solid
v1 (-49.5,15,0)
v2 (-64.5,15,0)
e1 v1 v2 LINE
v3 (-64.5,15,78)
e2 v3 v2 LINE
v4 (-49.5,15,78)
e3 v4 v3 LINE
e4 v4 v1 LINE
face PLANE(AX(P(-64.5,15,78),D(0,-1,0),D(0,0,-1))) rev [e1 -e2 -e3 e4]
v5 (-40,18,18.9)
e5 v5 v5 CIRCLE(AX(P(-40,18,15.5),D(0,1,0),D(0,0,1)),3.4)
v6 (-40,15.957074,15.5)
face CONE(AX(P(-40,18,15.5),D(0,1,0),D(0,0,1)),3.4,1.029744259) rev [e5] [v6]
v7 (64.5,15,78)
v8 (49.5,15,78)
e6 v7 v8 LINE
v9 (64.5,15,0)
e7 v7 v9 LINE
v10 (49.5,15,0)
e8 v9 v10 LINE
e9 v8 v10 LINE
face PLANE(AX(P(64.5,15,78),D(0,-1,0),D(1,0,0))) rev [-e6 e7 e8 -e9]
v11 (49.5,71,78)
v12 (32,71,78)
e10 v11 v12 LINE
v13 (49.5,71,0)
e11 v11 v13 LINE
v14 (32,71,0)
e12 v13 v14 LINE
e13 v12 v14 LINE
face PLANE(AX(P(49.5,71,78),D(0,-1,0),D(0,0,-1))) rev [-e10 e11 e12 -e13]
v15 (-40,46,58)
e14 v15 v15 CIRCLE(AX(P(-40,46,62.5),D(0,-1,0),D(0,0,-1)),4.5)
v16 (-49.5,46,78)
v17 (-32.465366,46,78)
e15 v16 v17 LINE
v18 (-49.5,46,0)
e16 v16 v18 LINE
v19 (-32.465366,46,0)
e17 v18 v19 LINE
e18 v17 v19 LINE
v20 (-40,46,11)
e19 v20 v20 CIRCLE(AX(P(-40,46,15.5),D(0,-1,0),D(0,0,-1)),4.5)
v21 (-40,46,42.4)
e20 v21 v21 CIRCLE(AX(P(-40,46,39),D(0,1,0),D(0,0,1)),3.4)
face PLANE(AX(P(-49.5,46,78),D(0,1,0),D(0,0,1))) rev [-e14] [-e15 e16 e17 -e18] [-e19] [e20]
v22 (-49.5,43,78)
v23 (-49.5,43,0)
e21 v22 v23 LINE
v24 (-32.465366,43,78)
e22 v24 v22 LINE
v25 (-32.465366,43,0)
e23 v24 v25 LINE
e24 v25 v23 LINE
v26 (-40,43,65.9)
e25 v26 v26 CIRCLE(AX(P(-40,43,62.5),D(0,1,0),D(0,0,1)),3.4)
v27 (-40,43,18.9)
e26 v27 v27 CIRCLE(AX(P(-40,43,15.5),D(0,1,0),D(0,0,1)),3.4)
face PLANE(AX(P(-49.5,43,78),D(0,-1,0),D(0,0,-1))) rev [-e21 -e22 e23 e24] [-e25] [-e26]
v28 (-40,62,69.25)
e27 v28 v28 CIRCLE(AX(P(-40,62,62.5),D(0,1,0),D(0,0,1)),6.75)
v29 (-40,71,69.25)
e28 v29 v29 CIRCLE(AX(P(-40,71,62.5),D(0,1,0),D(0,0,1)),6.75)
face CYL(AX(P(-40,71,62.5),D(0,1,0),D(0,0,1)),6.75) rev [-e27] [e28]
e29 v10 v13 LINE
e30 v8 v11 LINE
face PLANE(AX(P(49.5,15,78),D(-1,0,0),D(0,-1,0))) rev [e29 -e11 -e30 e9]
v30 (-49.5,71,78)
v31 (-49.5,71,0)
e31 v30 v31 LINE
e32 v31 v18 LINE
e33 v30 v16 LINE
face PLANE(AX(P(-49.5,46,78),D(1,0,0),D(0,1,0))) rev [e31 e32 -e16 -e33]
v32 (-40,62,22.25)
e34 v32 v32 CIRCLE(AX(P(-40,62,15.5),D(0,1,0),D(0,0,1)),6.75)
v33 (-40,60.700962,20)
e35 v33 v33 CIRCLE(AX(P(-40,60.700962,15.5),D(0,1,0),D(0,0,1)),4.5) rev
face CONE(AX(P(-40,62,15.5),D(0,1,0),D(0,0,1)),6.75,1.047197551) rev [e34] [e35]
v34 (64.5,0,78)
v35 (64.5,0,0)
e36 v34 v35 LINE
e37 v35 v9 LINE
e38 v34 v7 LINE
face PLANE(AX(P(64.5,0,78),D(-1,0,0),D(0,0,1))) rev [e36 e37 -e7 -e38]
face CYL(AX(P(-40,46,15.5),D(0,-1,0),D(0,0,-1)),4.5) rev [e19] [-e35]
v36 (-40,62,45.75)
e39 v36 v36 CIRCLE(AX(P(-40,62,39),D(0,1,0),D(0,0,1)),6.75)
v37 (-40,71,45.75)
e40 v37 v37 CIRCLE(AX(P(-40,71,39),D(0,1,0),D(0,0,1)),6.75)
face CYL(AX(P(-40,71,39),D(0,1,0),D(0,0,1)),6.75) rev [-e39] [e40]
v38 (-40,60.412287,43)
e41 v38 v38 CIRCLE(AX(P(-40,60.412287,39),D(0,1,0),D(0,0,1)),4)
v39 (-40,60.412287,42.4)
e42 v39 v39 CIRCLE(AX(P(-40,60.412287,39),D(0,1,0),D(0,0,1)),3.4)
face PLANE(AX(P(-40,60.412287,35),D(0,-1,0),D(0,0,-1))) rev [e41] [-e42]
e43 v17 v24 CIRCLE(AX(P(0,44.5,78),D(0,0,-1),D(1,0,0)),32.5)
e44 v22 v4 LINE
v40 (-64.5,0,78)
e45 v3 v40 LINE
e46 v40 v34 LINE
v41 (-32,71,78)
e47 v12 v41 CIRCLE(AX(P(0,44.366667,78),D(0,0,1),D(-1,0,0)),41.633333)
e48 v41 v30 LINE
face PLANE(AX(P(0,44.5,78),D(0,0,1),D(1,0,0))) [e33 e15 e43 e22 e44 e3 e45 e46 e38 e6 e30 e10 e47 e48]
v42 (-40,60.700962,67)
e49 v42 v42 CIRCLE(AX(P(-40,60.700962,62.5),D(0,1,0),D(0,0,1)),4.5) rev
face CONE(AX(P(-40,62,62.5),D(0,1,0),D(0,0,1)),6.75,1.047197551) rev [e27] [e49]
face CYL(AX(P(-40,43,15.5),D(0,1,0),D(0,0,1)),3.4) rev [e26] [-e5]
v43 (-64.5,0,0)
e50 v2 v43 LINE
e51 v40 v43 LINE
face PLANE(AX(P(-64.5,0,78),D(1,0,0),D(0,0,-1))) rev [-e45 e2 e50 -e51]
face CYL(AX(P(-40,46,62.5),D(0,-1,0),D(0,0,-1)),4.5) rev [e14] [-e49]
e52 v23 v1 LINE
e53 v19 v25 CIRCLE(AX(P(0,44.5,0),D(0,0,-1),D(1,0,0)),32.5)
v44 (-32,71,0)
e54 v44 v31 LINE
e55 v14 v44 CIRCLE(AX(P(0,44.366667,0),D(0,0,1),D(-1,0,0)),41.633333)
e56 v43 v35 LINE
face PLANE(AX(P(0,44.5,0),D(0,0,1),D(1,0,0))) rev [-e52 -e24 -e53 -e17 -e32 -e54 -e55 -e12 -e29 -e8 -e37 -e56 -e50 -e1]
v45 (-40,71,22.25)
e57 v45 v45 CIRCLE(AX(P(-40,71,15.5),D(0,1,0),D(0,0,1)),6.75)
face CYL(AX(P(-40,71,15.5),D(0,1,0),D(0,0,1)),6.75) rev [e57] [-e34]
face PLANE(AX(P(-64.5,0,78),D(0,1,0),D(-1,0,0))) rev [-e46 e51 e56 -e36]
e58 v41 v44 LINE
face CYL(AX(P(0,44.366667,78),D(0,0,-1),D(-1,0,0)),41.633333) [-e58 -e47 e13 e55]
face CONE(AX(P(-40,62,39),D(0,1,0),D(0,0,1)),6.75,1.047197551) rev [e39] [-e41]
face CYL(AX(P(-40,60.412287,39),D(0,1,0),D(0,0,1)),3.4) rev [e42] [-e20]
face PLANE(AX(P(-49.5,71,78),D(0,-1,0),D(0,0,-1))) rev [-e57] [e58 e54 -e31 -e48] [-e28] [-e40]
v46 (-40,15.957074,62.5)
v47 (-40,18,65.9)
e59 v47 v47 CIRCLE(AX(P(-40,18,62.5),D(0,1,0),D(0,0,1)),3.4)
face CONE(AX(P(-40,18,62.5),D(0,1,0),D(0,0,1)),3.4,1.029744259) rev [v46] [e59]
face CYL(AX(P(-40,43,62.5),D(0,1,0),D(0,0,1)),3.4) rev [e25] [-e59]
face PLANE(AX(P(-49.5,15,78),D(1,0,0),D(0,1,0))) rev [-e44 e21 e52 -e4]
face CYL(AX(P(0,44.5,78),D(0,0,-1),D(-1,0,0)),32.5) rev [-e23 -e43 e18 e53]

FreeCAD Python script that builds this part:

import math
import FreeCAD as App
import Part
import Sketcher
Q = App.Units.Quantity

doc = App.newDocument("Part")
body = doc.addObject("PartDesign::Body", "Body")

# Sketch on XY plane
sketch1 = body.newObject("Sketcher::SketchObject", "Sketch")
sketch1.AttachmentSupport = (doc.getObject("XY_Plane"), [""])
sketch1.MapMode = "FlatFace"
sketch1.addGeometry([
    Part.LineSegment(App.Vector(-64.5, 0, 0), App.Vector(64.5, 0, 0)),  # 0
    Part.LineSegment(App.Vector(64.5, 0, 0), App.Vector(64.5, 15, 0)),  # 1
    Part.LineSegment(App.Vector(64.5, 15, 0), App.Vector(49.5, 15, 0)),  # 2
    Part.LineSegment(App.Vector(49.5, 15, 0), App.Vector(49.5, 71, 0)),  # 3
    Part.LineSegment(App.Vector(49.5, 71, 0), App.Vector(32, 71, 0)),  # 4
    Part.ArcOfCircle(Part.Circle(App.Vector(0, 44.366667, 0), App.Vector(0, 0, 1), 41.633333), math.radians(39.77033), math.radians(140.22967)),  # 5
    Part.LineSegment(App.Vector(-32, 71, 0), App.Vector(-49.5, 71, 0)),  # 6
    Part.LineSegment(App.Vector(-49.5, 71, 0), App.Vector(-49.5, 46, 0)),  # 7
    Part.LineSegment(App.Vector(-49.5, 46, 0), App.Vector(-32.465366, 46, 0)),  # 8
    Part.ArcOfCircle(Part.Circle(App.Vector(0, 44.5, 0), App.Vector(0, 0, 1), 32.5), math.radians(-177.35464), math.radians(177.35464)),  # 9
    Part.LineSegment(App.Vector(-32.465366, 43, 0), App.Vector(-49.5, 43, 0)),  # 10
    Part.LineSegment(App.Vector(-49.5, 43, 0), App.Vector(-49.5, 15, 0)),  # 11
    Part.LineSegment(App.Vector(-49.5, 15, 0), App.Vector(-64.5, 15, 0)),  # 12
    Part.LineSegment(App.Vector(-64.5, 15, 0), App.Vector(-64.5, 0, 0)),  # 13
], False)
sketch1.addConstraint([
    Sketcher.Constraint("Coincident", 0, 2, 1, 1),
    Sketcher.Constraint("Coincident", 1, 2, 2, 1),
    Sketcher.Constraint("Coincident", 2, 2, 3, 1),
    Sketcher.Constraint("Coincident", 3, 2, 4, 1),
    Sketcher.Constraint("Coincident", 4, 2, 5, 1),
    Sketcher.Constraint("Coincident", 5, 2, 6, 1),
    Sketcher.Constraint("Coincident", 6, 2, 7, 1),
    Sketcher.Constraint("Coincident", 7, 2, 8, 1),
    Sketcher.Constraint("Coincident", 8, 2, 9, 2),
    Sketcher.Constraint("Coincident", 9, 1, 10, 1),
    Sketcher.Constraint("Coincident", 10, 2, 11, 1),
    Sketcher.Constraint("Coincident", 11, 2, 12, 1),
    Sketcher.Constraint("Coincident", 12, 2, 13, 1),
    Sketcher.Constraint("Coincident", 13, 2, 0, 1),
    Sketcher.Constraint("Horizontal", 0),
    Sketcher.Constraint("Vertical", 1),
    Sketcher.Constraint("Horizontal", 2),
    Sketcher.Constraint("Vertical", 3),
    Sketcher.Constraint("Horizontal", 4),
    Sketcher.Constraint("Horizontal", 6),
    Sketcher.Constraint("Vertical", 7),
    Sketcher.Constraint("Horizontal", 8),
    Sketcher.Constraint("Horizontal", 10),
    Sketcher.Constraint("Vertical", 11),
    Sketcher.Constraint("Horizontal", 12),
    Sketcher.Constraint("Vertical", 13),
    Sketcher.Constraint("Symmetric", 0, 2, 13, 2, -1, 1),
    Sketcher.Constraint("Symmetric", 4, 2, 5, 2, -2),
    Sketcher.Constraint("Symmetric", 2, 2, 11, 2, -2),
    Sketcher.Constraint("PointOnObject", 9, 3, -2),
    Sketcher.Constraint("Vertical", 8, 2, 9, 1),
    Sketcher.Constraint("Vertical", 7, 2, 10, 2),
    Sketcher.Constraint("Equal", 12, 1),
    Sketcher.Constraint("Radius", 9, 32.5),
    Sketcher.Constraint("DistanceX", 0, 1, 0, 2, 129.0),
    Sketcher.Constraint("DistanceX", 2, 2, 2, 1, 15.0),
    Sketcher.Constraint("DistanceY", 3, 1, 3, 2, 56.0),
    Sketcher.Constraint("DistanceY", 7, 2, 7, 1, 25.0),
    Sketcher.Constraint("DistanceY", 11, 2, 11, 1, 28.0),
    Sketcher.Constraint("DistanceX", 4, 2, 4, 1, 17.5),
    Sketcher.Constraint("Radius", 5, 41.633333),
])
pad1 = body.newObject("PartDesign::Pad", "Pad")
pad1.Profile = sketch1
pad1.Length = 78

# Sketch on YZ plane
sketch2 = body.newObject("Sketcher::SketchObject", "Sketch001")
sketch2.AttachmentSupport = (doc.getObject("YZ_Plane"), [""])
sketch2.MapMode = "FlatFace"
sketch2.AttachmentOffset = App.Placement(App.Vector(0, 0, -40), App.Rotation())
sketch2.addGeometry([
    Part.LineSegment(App.Vector(71, 55.75, 0), App.Vector(62, 55.75, 0)),  # 0
    Part.LineSegment(App.Vector(62, 55.75, 0), App.Vector(60.412287, 58.5, 0)),  # 1
    Part.LineSegment(App.Vector(60.412287, 58.5, 0), App.Vector(60.412287, 62.5, 0)),  # 2
    Part.LineSegment(App.Vector(60.412287, 62.5, 0), App.Vector(71, 62.5, 0)),  # 3
    Part.LineSegment(App.Vector(71, 62.5, 0), App.Vector(71, 55.75, 0)),  # 4
], False)
sketch2.addGeometry(Part.LineSegment(App.Vector(71, 62.5, 0), App.Vector(60.412287, 62.5, 0)), True)  # axis
sketch2.addConstraint([
    Sketcher.Constraint("Coincident", 0, 2, 1, 1),
    Sketcher.Constraint("Coincident", 1, 2, 2, 1),
    Sketcher.Constraint("Coincident", 2, 2, 3, 1),
    Sketcher.Constraint("Coincident", 3, 2, 4, 1),
    Sketcher.Constraint("Coincident", 4, 2, 0, 1),
    Sketcher.Constraint("Horizontal", 0),
    Sketcher.Constraint("Vertical", 2),
    Sketcher.Constraint("Horizontal", 3),
    Sketcher.Constraint("Vertical", 4),
    Sketcher.Constraint("Horizontal", 5),
    Sketcher.Constraint("Coincident", 5, 1, 3, 2),
    Sketcher.Constraint("Vertical", 1, 2, 5, 2),
    Sketcher.Constraint("DistanceX", 0, 2, 0, 1, 9.0),
    Sketcher.Constraint("DistanceY", 2, 1, 2, 2, 4.0),
    Sketcher.Constraint("Angle", 1, Q("120 deg")),
    Sketcher.Constraint("DistanceX", -1, 1, 0, 2, 62.0),
    Sketcher.Constraint("DistanceY", 4, 2, 4, 1, 6.75),
    Sketcher.Constraint("DistanceY", -1, 1, 1, 2, 58.5),
])
groove = body.newObject("PartDesign::Groove", "Groove")
groove.Profile = sketch2
groove.ReferenceAxis = (sketch2, ["Axis0"])
groove.Angle = 360
doc.recompute()

linearpattern = body.newObject("PartDesign::LinearPattern", "LinearPattern")
linearpattern.Originals = [groove]
linearpattern.Direction = (doc.getObject("Z_Axis"), [""])
linearpattern.Mode = "offset"
linearpattern.Offset = 23.5
linearpattern.Occurrences = 3
linearpattern.Reversed = True
body.Tip = linearpattern

# Sketch on YZ plane
sketch3 = body.newObject("Sketcher::SketchObject", "Sketch002")
sketch3.AttachmentSupport = (doc.getObject("YZ_Plane"), [""])
sketch3.MapMode = "FlatFace"
sketch3.AttachmentOffset = App.Placement(App.Vector(0, 0, -40), App.Rotation())
sketch3.addGeometry([
    Part.LineSegment(App.Vector(15.957074, 62.5, 0), App.Vector(43, 62.5, 0)),
    Part.LineSegment(App.Vector(43, 62.5, 0), App.Vector(43, 65.9, 0)),
    Part.LineSegment(App.Vector(43, 65.9, 0), App.Vector(18, 65.9, 0)),
    Part.LineSegment(App.Vector(18, 65.9, 0), App.Vector(15.957074, 62.5, 0)),
], False)
sketch3.addGeometry(Part.LineSegment(App.Vector(43, 62.5, 0), App.Vector(15.957074, 62.5, 0)), True)  # axis
sketch3.addConstraint([
    Sketcher.Constraint("Coincident", 0, 2, 1, 1),
    Sketcher.Constraint("Coincident", 1, 2, 2, 1),
    Sketcher.Constraint("Coincident", 2, 2, 3, 1),
    Sketcher.Constraint("Coincident", 3, 2, 0, 1),
    Sketcher.Constraint("Horizontal", 0),
    Sketcher.Constraint("Vertical", 1),
    Sketcher.Constraint("Horizontal", 2),
    Sketcher.Constraint("Horizontal", 4),
    Sketcher.Constraint("Coincident", 4, 1, 0, 2),
    Sketcher.Constraint("Equal", 0, 4),
    Sketcher.Constraint("DistanceX", 2, 2, 2, 1, 25.0),
    Sketcher.Constraint("Angle", 3, Q("-121 deg")),
    Sketcher.Constraint("DistanceY", 1, 1, 1, 2, 3.4),
    Sketcher.Constraint("DistanceX", -1, 1, 0, 2, 43.0),
    Sketcher.Constraint("DistanceY", -1, 1, 0, 2, 62.5),
])
groove2 = body.newObject("PartDesign::Groove", "Groove001")
groove2.Profile = sketch3
groove2.ReferenceAxis = (sketch3, ["Axis0"])
groove2.Angle = 360

# Sketch on YZ plane
sketch4 = body.newObject("Sketcher::SketchObject", "Sketch003")
sketch4.AttachmentSupport = (doc.getObject("YZ_Plane"), [""])
sketch4.MapMode = "FlatFace"
sketch4.AttachmentOffset = App.Placement(App.Vector(0, 0, -40), App.Rotation())
sketch4.addGeometry([
    Part.LineSegment(App.Vector(86, 62.5, 0), App.Vector(46, 62.5, 0)),
    Part.LineSegment(App.Vector(46, 62.5, 0), App.Vector(46, 58, 0)),
    Part.LineSegment(App.Vector(46, 58, 0), App.Vector(86, 58, 0)),
    Part.LineSegment(App.Vector(86, 58, 0), App.Vector(86, 62.5, 0)),
], False)
sketch4.addGeometry(Part.LineSegment(App.Vector(46, 62.5, 0), App.Vector(86, 62.5, 0)), True)  # axis
sketch4.addConstraint([
    Sketcher.Constraint("Coincident", 0, 2, 1, 1),
    Sketcher.Constraint("Coincident", 1, 2, 2, 1),
    Sketcher.Constraint("Coincident", 2, 2, 3, 1),
    Sketcher.Constraint("Coincident", 3, 2, 0, 1),
    Sketcher.Constraint("Horizontal", 0),
    Sketcher.Constraint("Vertical", 1),
    Sketcher.Constraint("Horizontal", 2),
    Sketcher.Constraint("Vertical", 3),
    Sketcher.Constraint("Horizontal", 4),
    Sketcher.Constraint("Coincident", 4, 1, 0, 2),
    Sketcher.Constraint("Vertical", 2, 2, 4, 2),
    Sketcher.Constraint("DistanceX", 0, 2, 0, 1, 40.0),
    Sketcher.Constraint("DistanceY", 1, 2, 1, 1, 4.5),
    Sketcher.Constraint("DistanceX", -1, 1, 0, 2, 46.0),
    Sketcher.Constraint("DistanceY", -1, 1, 1, 2, 58.0),
])
groove3 = body.newObject("PartDesign::Groove", "Groove002")
groove3.Profile = sketch4
groove3.ReferenceAxis = (sketch4, ["Axis0"])
groove3.Angle = 360

# Sketch on XZ plane
sketch5 = body.newObject("Sketcher::SketchObject", "Sketch004")
sketch5.AttachmentSupport = (doc.getObject("XZ_Plane"), [""])
sketch5.MapMode = "FlatFace"
sketch5.AttachmentOffset = App.Placement(App.Vector(0, 0, -60.412287), App.Rotation())
sketch5.addGeometry(Part.Circle(App.Vector(-40, 39, 0), App.Vector(0, 0, 1), 3.4), False)
sketch5.addConstraint([
    Sketcher.Constraint("Diameter", 0, 6.8),
    Sketcher.Constraint("DistanceX", 0, 3, -1, 1, 40.0),
    Sketcher.Constraint("DistanceY", -1, 1, 0, 3, 39.0),
])
doc.recompute()
hole = body.newObject("PartDesign::Hole", "Hole")
hole.Profile = sketch5
hole.ThreadType = "None"
hole.Diameter = 6.8
hole.DepthType = "Dimension"
hole.Depth = 14.412287
hole.DrillPoint = "Flat"
hole.Reversed = True
doc.recompute()

datumplane = body.newObject("PartDesign::Plane", "DatumPlane")
datumplane.AttachmentSupport = (doc.getObject("XY_Plane"), [""])
datumplane.MapMode = "FlatFace"
datumplane.AttachmentOffset = App.Placement(App.Vector(0, 0, 39), App.Rotation())
mirrored = body.newObject("PartDesign::Mirrored", "Mirrored")
mirrored.Originals = [groove2, groove3]
mirrored.MirrorPlane = (datumplane, [""])
body.Tip = mirrored

doc.recompute()
